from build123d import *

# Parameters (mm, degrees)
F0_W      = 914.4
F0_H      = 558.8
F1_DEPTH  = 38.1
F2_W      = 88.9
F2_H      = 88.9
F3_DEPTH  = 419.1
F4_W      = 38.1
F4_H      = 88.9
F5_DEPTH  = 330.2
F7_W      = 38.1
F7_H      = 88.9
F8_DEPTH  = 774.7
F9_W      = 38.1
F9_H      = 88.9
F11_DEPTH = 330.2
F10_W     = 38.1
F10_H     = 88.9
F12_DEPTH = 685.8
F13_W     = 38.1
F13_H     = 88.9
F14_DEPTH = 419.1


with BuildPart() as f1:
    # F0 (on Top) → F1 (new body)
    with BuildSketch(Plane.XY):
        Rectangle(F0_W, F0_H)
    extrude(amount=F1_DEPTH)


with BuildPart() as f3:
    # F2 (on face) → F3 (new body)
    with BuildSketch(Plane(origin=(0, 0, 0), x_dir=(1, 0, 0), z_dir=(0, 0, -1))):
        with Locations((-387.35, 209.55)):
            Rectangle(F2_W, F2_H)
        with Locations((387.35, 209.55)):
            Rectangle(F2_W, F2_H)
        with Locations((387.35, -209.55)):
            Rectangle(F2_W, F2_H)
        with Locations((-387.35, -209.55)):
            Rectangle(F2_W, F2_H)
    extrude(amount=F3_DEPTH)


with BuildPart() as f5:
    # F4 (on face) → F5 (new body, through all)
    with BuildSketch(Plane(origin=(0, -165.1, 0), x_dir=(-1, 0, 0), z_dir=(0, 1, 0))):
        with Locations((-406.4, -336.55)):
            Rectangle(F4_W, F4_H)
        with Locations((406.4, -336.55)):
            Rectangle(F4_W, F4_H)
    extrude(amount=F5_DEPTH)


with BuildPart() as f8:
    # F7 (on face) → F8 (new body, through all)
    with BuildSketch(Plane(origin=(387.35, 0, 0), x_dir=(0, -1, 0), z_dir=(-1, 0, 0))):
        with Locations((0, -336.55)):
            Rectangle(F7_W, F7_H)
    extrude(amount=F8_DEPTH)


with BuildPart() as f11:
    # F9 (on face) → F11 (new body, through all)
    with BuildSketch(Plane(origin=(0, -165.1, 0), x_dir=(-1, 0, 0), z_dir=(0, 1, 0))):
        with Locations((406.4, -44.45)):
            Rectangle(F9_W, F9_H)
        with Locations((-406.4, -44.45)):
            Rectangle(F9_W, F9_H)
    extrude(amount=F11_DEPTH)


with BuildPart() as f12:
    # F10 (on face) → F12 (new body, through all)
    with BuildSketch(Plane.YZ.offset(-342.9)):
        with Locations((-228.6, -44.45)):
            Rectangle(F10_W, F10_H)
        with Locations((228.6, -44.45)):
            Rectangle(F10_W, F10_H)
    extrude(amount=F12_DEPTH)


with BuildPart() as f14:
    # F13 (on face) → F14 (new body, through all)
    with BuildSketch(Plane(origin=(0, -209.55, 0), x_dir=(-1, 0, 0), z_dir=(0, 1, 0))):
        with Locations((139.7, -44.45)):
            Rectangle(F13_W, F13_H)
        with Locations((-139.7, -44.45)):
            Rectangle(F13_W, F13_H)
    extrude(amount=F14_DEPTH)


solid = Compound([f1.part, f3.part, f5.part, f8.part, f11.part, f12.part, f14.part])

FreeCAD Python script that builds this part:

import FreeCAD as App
import Part
import Sketcher
from FreeCAD import Vector
Q = App.Units.Quantity

doc = App.newDocument("Part")
body = doc.addObject("PartDesign::Body", "Body")

# Sketch on XY plane
sketch1 = doc.addObject("Sketcher::SketchObject", "Sketch")
body.addObject(sketch1)
sketch1.AttachmentSupport = (doc.XY_Plane, [""])
sketch1.MapMode = "FlatFace"
sketch1.addGeometry(Part.LineSegment(Vector(-457, 279, 0), Vector(-457, -279, 0)), False)
sketch1.addGeometry(Part.LineSegment(Vector(-457, -279, 0), Vector(457, -279, 0)), False)
sketch1.addGeometry(Part.LineSegment(Vector(457, -279, 0), Vector(457, 279, 0)), False)
sketch1.addGeometry(Part.LineSegment(Vector(457, 279, 0), Vector(-457, 279, 0)), False)
sketch1.addConstraint(Sketcher.Constraint("Coincident", 0, 2, 1, 1))
sketch1.addConstraint(Sketcher.Constraint("Coincident", 1, 2, 2, 1))
sketch1.addConstraint(Sketcher.Constraint("Coincident", 2, 2, 3, 1))
sketch1.addConstraint(Sketcher.Constraint("Coincident", 3, 2, 0, 1))
sketch1.addConstraint(Sketcher.Constraint("Vertical", 0))
sketch1.addConstraint(Sketcher.Constraint("Horizontal", 1))
sketch1.addConstraint(Sketcher.Constraint("Vertical", 2))
sketch1.addConstraint(Sketcher.Constraint("Horizontal", 3))
sketch1.addConstraint(Sketcher.Constraint("Symmetric", 0, 2, 2, 2, -1, 1))
sketch1.addConstraint(Sketcher.Constraint("DistanceX", 1, 1, 1, 2, Q("36 in")))
sketch1.addConstraint(Sketcher.Constraint("DistanceY", 0, 2, 0, 1, Q("22 in")))
pad1 = doc.addObject("PartDesign::Pad", "Pad")
body.addObject(pad1)
pad1.Profile = sketch1
pad1.Length = Q("1.5 in")
body2 = doc.addObject("PartDesign::Body", "Body001")
body2.AllowCompound = True

# Sketch on XY plane
sketch2 = doc.addObject("Sketcher::SketchObject", "Sketch001")
body2.addObject(sketch2)
sketch2.AttachmentSupport = (doc.getObject("XY_Plane001"), [""])
sketch2.MapMode = "FlatFace"
sketch2.addGeometry(Part.LineSegment(Vector(-432, -254, 0), Vector(-432, -165, 0)), False)
sketch2.addGeometry(Part.LineSegment(Vector(-432, -165, 0), Vector(-343, -165, 0)), False)
sketch2.addGeometry(Part.LineSegment(Vector(-343, -165, 0), Vector(-343, -254, 0)), False)
sketch2.addGeometry(Part.LineSegment(Vector(-343, -254, 0), Vector(-432, -254, 0)), False)
sketch2.addGeometry(Part.LineSegment(Vector(343, -254, 0), Vector(343, -165, 0)), False)
sketch2.addGeometry(Part.LineSegment(Vector(343, -165, 0), Vector(432, -165, 0)), False)
sketch2.addGeometry(Part.LineSegment(Vector(432, -165, 0), Vector(432, -254, 0)), False)
sketch2.addGeometry(Part.LineSegment(Vector(432, -254, 0), Vector(343, -254, 0)), False)
sketch2.addGeometry(Part.LineSegment(Vector(343, 165, 0), Vector(343, 254, 0)), False)
sketch2.addGeometry(Part.LineSegment(Vector(343, 254, 0), Vector(432, 254, 0)), False)
sketch2.addGeometry(Part.LineSegment(Vector(432, 254, 0), Vector(432, 165, 0)), False)
sketch2.addGeometry(Part.LineSegment(Vector(432, 165, 0), Vector(343, 165, 0)), False)
sketch2.addGeometry(Part.LineSegment(Vector(-432, 165, 0), Vector(-432, 254, 0)), False)
sketch2.addGeometry(Part.LineSegment(Vector(-432, 254, 0), Vector(-343, 254, 0)), False)
sketch2.addGeometry(Part.LineSegment(Vector(-343, 254, 0), Vector(-343, 165, 0)), False)
sketch2.addGeometry(Part.LineSegment(Vector(-343, 165, 0), Vector(-432, 165, 0)), False)
sketch2.addConstraint(Sketcher.Constraint("Coincident", 0, 2, 1, 1))
sketch2.addConstraint(Sketcher.Constraint("Coincident", 1, 2, 2, 1))
sketch2.addConstraint(Sketcher.Constraint("Coincident", 2, 2, 3, 1))
sketch2.addConstraint(Sketcher.Constraint("Coincident", 3, 2, 0, 1))
sketch2.addConstraint(Sketcher.Constraint("Coincident", 4, 2, 5, 1))
sketch2.addConstraint(Sketcher.Constraint("Coincident", 5, 2, 6, 1))
sketch2.addConstraint(Sketcher.Constraint("Coincident", 6, 2, 7, 1))
sketch2.addConstraint(Sketcher.Constraint("Coincident", 7, 2, 4, 1))
sketch2.addConstraint(Sketcher.Constraint("Coincident", 8, 2, 9, 1))
sketch2.addConstraint(Sketcher.Constraint("Coincident", 9, 2, 10, 1))
sketch2.addConstraint(Sketcher.Constraint("Coincident", 10, 2, 11, 1))
sketch2.addConstraint(Sketcher.Constraint("Coincident", 11, 2, 8, 1))
sketch2.addConstraint(Sketcher.Constraint("Coincident", 12, 2, 13, 1))
sketch2.addConstraint(Sketcher.Constraint("Coincident", 13, 2, 14, 1))
sketch2.addConstraint(Sketcher.Constraint("Coincident", 14, 2, 15, 1))
sketch2.addConstraint(Sketcher.Constraint("Coincident", 15, 2, 12, 1))
sketch2.addConstraint(Sketcher.Constraint("Vertical", 0))
sketch2.addConstraint(Sketcher.Constraint("Horizontal", 1))
sketch2.addConstraint(Sketcher.Constraint("Vertical", 2))
sketch2.addConstraint(Sketcher.Constraint("Horizontal", 3))
sketch2.addConstraint(Sketcher.Constraint("Vertical", 4))
sketch2.addConstraint(Sketcher.Constraint("Horizontal", 5))
sketch2.addConstraint(Sketcher.Constraint("Vertical", 6))
sketch2.addConstraint(Sketcher.Constraint("Horizontal", 7))
sketch2.addConstraint(Sketcher.Constraint("Vertical", 8))
sketch2.addConstraint(Sketcher.Constraint("Horizontal", 9))
sketch2.addConstraint(Sketcher.Constraint("Vertical", 10))
sketch2.addConstraint(Sketcher.Constraint("Horizontal", 11))
sketch2.addConstraint(Sketcher.Constraint("Vertical", 12))
sketch2.addConstraint(Sketcher.Constraint("Horizontal", 13))
sketch2.addConstraint(Sketcher.Constraint("Vertical", 14))
sketch2.addConstraint(Sketcher.Constraint("Horizontal", 15))
sketch2.addConstraint(Sketcher.Constraint("Symmetric", 2, 2, 8, 2, -1, 1))
sketch2.addConstraint(Sketcher.Constraint("Symmetric", 0, 2, 10, 2, -1, 1))
sketch2.addConstraint(Sketcher.Constraint("Symmetric", 6, 2, 12, 2, -1, 1))
sketch2.addConstraint(Sketcher.Constraint("Symmetric", 4, 2, 14, 2, -1, 1))
sketch2.addConstraint(Sketcher.Constraint("Symmetric", 1, 2, 4, 2, -2))
sketch2.addConstraint(Sketcher.Constraint("Symmetric", 3, 2, 6, 2, -2))
sketch2.addConstraint(Sketcher.Constraint("Equal", 15, 0))
sketch2.addConstraint(Sketcher.Constraint("DistanceX", 1, 1, 1, 2, Q("3.5 in")))
sketch2.addConstraint(Sketcher.Constraint("DistanceX", 0, 2, -1, 1, Q("17 in")))
sketch2.addConstraint(Sketcher.Constraint("DistanceY", 2, 2, -1, 1, Q("10 in")))
pad2 = doc.addObject("PartDesign::Pad", "Pad001")
body2.addObject(pad2)
pad2.Profile = sketch2
pad2.Length = Q("16.5 in")
pad2.Reversed = True
body3 = doc.addObject("PartDesign::Body", "Body002")
body3.AllowCompound = True

# Sketch on XZ plane
sketch3 = doc.addObject("Sketcher::SketchObject", "Sketch002")
body3.addObject(sketch3)
sketch3.AttachmentSupport = (doc.getObject("XZ_Plane002"), [""])
sketch3.MapMode = "FlatFace"
sketch3.AttachmentOffset = App.Placement(Vector(0, 0, 6.5 * 25.4), App.Rotation())
sketch3.addGeometry(Part.LineSegment(Vector(425, -292, 0), Vector(425, -381, 0)), False)
sketch3.addGeometry(Part.LineSegment(Vector(425, -381, 0), Vector(387, -381, 0)), False)
sketch3.addGeometry(Part.LineSegment(Vector(387, -381, 0), Vector(387, -292, 0)), False)
sketch3.addGeometry(Part.LineSegment(Vector(387, -292, 0), Vector(425, -292, 0)), False)
sketch3.addGeometry(Part.LineSegment(Vector(-387, -292, 0), Vector(-387, -381, 0)), False)
sketch3.addGeometry(Part.LineSegment(Vector(-387, -381, 0), Vector(-425, -381, 0)), False)
sketch3.addGeometry(Part.LineSegment(Vector(-425, -381, 0), Vector(-425, -292, 0)), False)
sketch3.addGeometry(Part.LineSegment(Vector(-425, -292, 0), Vector(-387, -292, 0)), False)
sketch3.addConstraint(Sketcher.Constraint("Coincident", 0, 2, 1, 1))
sketch3.addConstraint(Sketcher.Constraint("Coincident", 1, 2, 2, 1))
sketch3.addConstraint(Sketcher.Constraint("Coincident", 2, 2, 3, 1))
sketch3.addConstraint(Sketcher.Constraint("Coincident", 3, 2, 0, 1))
sketch3.addConstraint(Sketcher.Constraint("Coincident", 4, 2, 5, 1))
sketch3.addConstraint(Sketcher.Constraint("Coincident", 5, 2, 6, 1))
sketch3.addConstraint(Sketcher.Constraint("Coincident", 6, 2, 7, 1))
sketch3.addConstraint(Sketcher.Constraint("Coincident", 7, 2, 4, 1))
sketch3.addConstraint(Sketcher.Constraint("Vertical", 0))
sketch3.addConstraint(Sketcher.Constraint("Horizontal", 1))
sketch3.addConstraint(Sketcher.Constraint("Vertical", 2))
sketch3.addConstraint(Sketcher.Constraint("Horizontal", 3))
sketch3.addConstraint(Sketcher.Constraint("Vertical", 4))
sketch3.addConstraint(Sketcher.Constraint("Horizontal", 5))
sketch3.addConstraint(Sketcher.Constraint("Vertical", 6))
sketch3.addConstraint(Sketcher.Constraint("Horizontal", 7))
sketch3.addConstraint(Sketcher.Constraint("Symmetric", 1, 2, 4, 2, -2))
sketch3.addConstraint(Sketcher.Constraint("Symmetric", 3, 2, 6, 2, -2))
sketch3.addConstraint(Sketcher.Constraint("DistanceX", 1, 2, 1, 1, Q("1.5 in")))
sketch3.addConstraint(Sketcher.Constraint("DistanceY", 0, 2, 0, 1, Q("3.5 in")))
sketch3.addConstraint(Sketcher.Constraint("DistanceY", 0, 2, -1, 1, Q("15 in")))
sketch3.addConstraint(Sketcher.Constraint("DistanceX", 4, 2, 0, 2, Q("32 in")))
pad3 = doc.addObject("PartDesign::Pad", "Pad002")
body3.addObject(pad3)
pad3.Profile = sketch3
pad3.Length = Q("13 in")
pad3.Reversed = True
body4 = doc.addObject("PartDesign::Body", "Body003")

# Sketch on YZ plane
sketch4 = doc.addObject("Sketcher::SketchObject", "Sketch003")
body4.addObject(sketch4)
sketch4.AttachmentSupport = (doc.getObject("YZ_Plane003"), [""])
sketch4.MapMode = "FlatFace"
sketch4.AttachmentOffset = App.Placement(Vector(0, 0, 15.25 * 25.4), App.Rotation())
sketch4.addGeometry(Part.LineSegment(Vector(19, -292, 0), Vector(19, -381, 0)), False)
sketch4.addGeometry(Part.LineSegment(Vector(19, -381, 0), Vector(-19, -381, 0)), False)
sketch4.addGeometry(Part.LineSegment(Vector(-19, -381, 0), Vector(-19, -292, 0)), False)
sketch4.addGeometry(Part.LineSegment(Vector(-19, -292, 0), Vector(19, -292, 0)), False)
sketch4.addConstraint(Sketcher.Constraint("Coincident", 0, 2, 1, 1))
sketch4.addConstraint(Sketcher.Constraint("Coincident", 1, 2, 2, 1))
sketch4.addConstraint(Sketcher.Constraint("Coincident", 2, 2, 3, 1))
sketch4.addConstraint(Sketcher.Constraint("Coincident", 3, 2, 0, 1))
sketch4.addConstraint(Sketcher.Constraint("Vertical", 0))
sketch4.addConstraint(Sketcher.Constraint("Horizontal", 1))
sketch4.addConstraint(Sketcher.Constraint("Vertical", 2))
sketch4.addConstraint(Sketcher.Constraint("Horizontal", 3))
sketch4.addConstraint(Sketcher.Constraint("DistanceX", 1, 2, 1, 1, Q("1.5 in")))
sketch4.addConstraint(Sketcher.Constraint("DistanceY", 0, 2, 0, 1, Q("3.5 in")))
sketch4.addConstraint(Sketcher.Constraint("DistanceY", 0, 2, -1, 1, Q("15 in")))
sketch4.addConstraint(Sketcher.Constraint("DistanceX", -1, 1, 0, 2, Q("0.75 in")))
pad4 = doc.addObject("PartDesign::Pad", "Pad003")
body4.addObject(pad4)
pad4.Profile = sketch4
pad4.Length = Q("30.5 in")
pad4.Reversed = True
body5 = doc.addObject("PartDesign::Body", "Body004")
body5.AllowCompound = True

# Sketch on XZ plane
sketch5 = doc.addObject("Sketcher::SketchObject", "Sketch004")
body5.addObject(sketch5)
sketch5.AttachmentSupport = (doc.getObject("XZ_Plane004"), [""])
sketch5.MapMode = "FlatFace"
sketch5.AttachmentOffset = App.Placement(Vector(0, 0, 6.5 * 25.4), App.Rotation())
sketch5.addGeometry(Part.LineSegment(Vector(-387, 0, 0), Vector(-387, -89, 0)), False)
sketch5.addGeometry(Part.LineSegment(Vector(-387, -89, 0), Vector(-425, -89, 0)), False)
sketch5.addGeometry(Part.LineSegment(Vector(-425, -89, 0), Vector(-425, 0, 0)), False)
sketch5.addGeometry(Part.LineSegment(Vector(-425, 0, 0), Vector(-387, 0, 0)), False)
sketch5.addGeometry(Part.LineSegment(Vector(425, 0, 0), Vector(425, -89, 0)), False)
sketch5.addGeometry(Part.LineSegment(Vector(425, -89, 0), Vector(387, -89, 0)), False)
sketch5.addGeometry(Part.LineSegment(Vector(387, -89, 0), Vector(387, 0, 0)), False)
sketch5.addGeometry(Part.LineSegment(Vector(387, 0, 0), Vector(425, 0, 0)), False)
sketch5.addConstraint(Sketcher.Constraint("Coincident", 0, 2, 1, 1))
sketch5.addConstraint(Sketcher.Constraint("Coincident", 1, 2, 2, 1))
sketch5.addConstraint(Sketcher.Constraint("Coincident", 2, 2, 3, 1))
sketch5.addConstraint(Sketcher.Constraint("Coincident", 3, 2, 0, 1))
sketch5.addConstraint(Sketcher.Constraint("Coincident", 4, 2, 5, 1))
sketch5.addConstraint(Sketcher.Constraint("Coincident", 5, 2, 6, 1))
sketch5.addConstraint(Sketcher.Constraint("Coincident", 6, 2, 7, 1))
sketch5.addConstraint(Sketcher.Constraint("Coincident", 7, 2, 4, 1))
sketch5.addConstraint(Sketcher.Constraint("Vertical", 0))
sketch5.addConstraint(Sketcher.Constraint("Horizontal", 1))
sketch5.addConstraint(Sketcher.Constraint("Vertical", 2))
sketch5.addConstraint(Sketcher.Constraint("Horizontal", 3))
sketch5.addConstraint(Sketcher.Constraint("Vertical", 4))
sketch5.addConstraint(Sketcher.Constraint("Horizontal", 5))
sketch5.addConstraint(Sketcher.Constraint("Vertical", 6))
sketch5.addConstraint(Sketcher.Constraint("Horizontal", 7))
sketch5.addConstraint(Sketcher.Constraint("Symmetric", 3, 2, 6, 2, -1, 1))
sketch5.addConstraint(Sketcher.Constraint("Symmetric", 1, 2, 4, 2, -2))
sketch5.addConstraint(Sketcher.Constraint("PointOnObject", 2, 2, -1))
sketch5.addConstraint(Sketcher.Constraint("DistanceX", 1, 2, 1, 1, Q("1.5 in")))
sketch5.addConstraint(Sketcher.Constraint("DistanceY", 0, 2, 0, 1, Q("3.5 in")))
sketch5.addConstraint(Sketcher.Constraint("DistanceX", 0, 2, 4, 2, Q("32 in")))
pad5 = doc.addObject("PartDesign::Pad", "Pad004")
body5.addObject(pad5)
pad5.Profile = sketch5
pad5.Length = Q("13 in")
pad5.Reversed = True
body6 = doc.addObject("PartDesign::Body", "Body005")
body6.AllowCompound = True

# Sketch on YZ plane
sketch6 = doc.addObject("Sketcher::SketchObject", "Sketch005")
body6.addObject(sketch6)
sketch6.AttachmentSupport = (doc.getObject("YZ_Plane005"), [""])
sketch6.MapMode = "FlatFace"
sketch6.AttachmentOffset = App.Placement(Vector(0, 0, -13.5 * 25.4), App.Rotation())
sketch6.addGeometry(Part.LineSegment(Vector(-248, 0, 0), Vector(-248, -89, 0)), False)
sketch6.addGeometry(Part.LineSegment(Vector(-248, -89, 0), Vector(-210, -89, 0)), False)
sketch6.addGeometry(Part.LineSegment(Vector(-210, -89, 0), Vector(-210, 0, 0)), False)
sketch6.addGeometry(Part.LineSegment(Vector(-210, 0, 0), Vector(-248, 0, 0)), False)
sketch6.addGeometry(Part.LineSegment(Vector(210, 0, 0), Vector(210, -89, 0)), False)
sketch6.addGeometry(Part.LineSegment(Vector(210, -89, 0), Vector(248, -89, 0)), False)
sketch6.addGeometry(Part.LineSegment(Vector(248, -89, 0), Vector(248, 0, 0)), False)
sketch6.addGeometry(Part.LineSegment(Vector(248, 0, 0), Vector(210, 0, 0)), False)
sketch6.addConstraint(Sketcher.Constraint("Coincident", 0, 2, 1, 1))
sketch6.addConstraint(Sketcher.Constraint("Coincident", 1, 2, 2, 1))
sketch6.addConstraint(Sketcher.Constraint("Coincident", 2, 2, 3, 1))
sketch6.addConstraint(Sketcher.Constraint("Coincident", 3, 2, 0, 1))
sketch6.addConstraint(Sketcher.Constraint("Coincident", 4, 2, 5, 1))
sketch6.addConstraint(Sketcher.Constraint("Coincident", 5, 2, 6, 1))
sketch6.addConstraint(Sketcher.Constraint("Coincident", 6, 2, 7, 1))
sketch6.addConstraint(Sketcher.Constraint("Coincident", 7, 2, 4, 1))
sketch6.addConstraint(Sketcher.Constraint("Vertical", 0))
sketch6.addConstraint(Sketcher.Constraint("Horizontal", 1))
sketch6.addConstraint(Sketcher.Constraint("Vertical", 2))
sketch6.addConstraint(Sketcher.Constraint("Horizontal", 3))
sketch6.addConstraint(Sketcher.Constraint("Vertical", 4))
sketch6.addConstraint(Sketcher.Constraint("Horizontal", 5))
sketch6.addConstraint(Sketcher.Constraint("Vertical", 6))
sketch6.addConstraint(Sketcher.Constraint("Horizontal", 7))
sketch6.addConstraint(Sketcher.Constraint("Symmetric", 3, 2, 6, 2, -1, 1))
sketch6.addConstraint(Sketcher.Constraint("Symmetric", 1, 2, 4, 2, -2))
sketch6.addConstraint(Sketcher.Constraint("PointOnObject", 2, 2, -1))
sketch6.addConstraint(Sketcher.Constraint("DistanceX", 1, 1, 1, 2, Q("1.5 in")))
sketch6.addConstraint(Sketcher.Constraint("DistanceY", 0, 2, 0, 1, Q("3.5 in")))
sketch6.addConstraint(Sketcher.Constraint("DistanceX", 0, 2, 4, 2, Q("18 in")))
pad6 = doc.addObject("PartDesign::Pad", "Pad005")
body6.addObject(pad6)
pad6.Profile = sketch6
pad6.Length = Q("27 in")
body7 = doc.addObject("PartDesign::Body", "Body006")
body7.AllowCompound = True

# Sketch on XZ plane
sketch7 = doc.addObject("Sketcher::SketchObject", "Sketch006")
body7.addObject(sketch7)
sketch7.AttachmentSupport = (doc.getObject("XZ_Plane006"), [""])
sketch7.MapMode = "FlatFace"
sketch7.AttachmentOffset = App.Placement(Vector(0, 0, 8.25 * 25.4), App.Rotation())
sketch7.addGeometry(Part.LineSegment(Vector(-121, 0, 0), Vector(-121, -89, 0)), False)
sketch7.addGeometry(Part.LineSegment(Vector(-121, -89, 0), Vector(-159, -89, 0)), False)
sketch7.addGeometry(Part.LineSegment(Vector(-159, -89, 0), Vector(-159, 0, 0)), False)
sketch7.addGeometry(Part.LineSegment(Vector(-159, 0, 0), Vector(-121, 0, 0)), False)
sketch7.addGeometry(Part.LineSegment(Vector(159, 0, 0), Vector(159, -89, 0)), False)
sketch7.addGeometry(Part.LineSegment(Vector(159, -89, 0), Vector(121, -89, 0)), False)
sketch7.addGeometry(Part.LineSegment(Vector(121, -89, 0), Vector(121, 0, 0)), False)
sketch7.addGeometry(Part.LineSegment(Vector(121, 0, 0), Vector(159, 0, 0)), False)
sketch7.addConstraint(Sketcher.Constraint("Coincident", 0, 2, 1, 1))
sketch7.addConstraint(Sketcher.Constraint("Coincident", 1, 2, 2, 1))
sketch7.addConstraint(Sketcher.Constraint("Coincident", 2, 2, 3, 1))
sketch7.addConstraint(Sketcher.Constraint("Coincident", 3, 2, 0, 1))
sketch7.addConstraint(Sketcher.Constraint("Coincident", 4, 2, 5, 1))
sketch7.addConstraint(Sketcher.Constraint("Coincident", 5, 2, 6, 1))
sketch7.addConstraint(Sketcher.Constraint("Coincident", 6, 2, 7, 1))
sketch7.addConstraint(Sketcher.Constraint("Coincident", 7, 2, 4, 1))
sketch7.addConstraint(Sketcher.Constraint("Vertical", 0))
sketch7.addConstraint(Sketcher.Constraint("Horizontal", 1))
sketch7.addConstraint(Sketcher.Constraint("Vertical", 2))
sketch7.addConstraint(Sketcher.Constraint("Horizontal", 3))
sketch7.addConstraint(Sketcher.Constraint("Vertical", 4))
sketch7.addConstraint(Sketcher.Constraint("Horizontal", 5))
sketch7.addConstraint(Sketcher.Constraint("Vertical", 6))
sketch7.addConstraint(Sketcher.Constraint("Horizontal", 7))
sketch7.addConstraint(Sketcher.Constraint("Symmetric", 3, 2, 6, 2, -1, 1))
sketch7.addConstraint(Sketcher.Constraint("Symmetric", 1, 2, 4, 2, -2))
sketch7.addConstraint(Sketcher.Constraint("PointOnObject", 2, 2, -1))
sketch7.addConstraint(Sketcher.Constraint("DistanceX", 1, 2, 1, 1, Q("1.5 in")))
sketch7.addConstraint(Sketcher.Constraint("DistanceY", 0, 2, 0, 1, Q("3.5 in")))
sketch7.addConstraint(Sketcher.Constraint("DistanceX", 0, 2, 4, 2, Q("11 in")))
pad7 = doc.addObject("PartDesign::Pad", "Pad006")
body7.addObject(pad7)
pad7.Profile = sketch7
pad7.Length = Q("16.5 in")
pad7.Reversed = True

doc.recompute()
